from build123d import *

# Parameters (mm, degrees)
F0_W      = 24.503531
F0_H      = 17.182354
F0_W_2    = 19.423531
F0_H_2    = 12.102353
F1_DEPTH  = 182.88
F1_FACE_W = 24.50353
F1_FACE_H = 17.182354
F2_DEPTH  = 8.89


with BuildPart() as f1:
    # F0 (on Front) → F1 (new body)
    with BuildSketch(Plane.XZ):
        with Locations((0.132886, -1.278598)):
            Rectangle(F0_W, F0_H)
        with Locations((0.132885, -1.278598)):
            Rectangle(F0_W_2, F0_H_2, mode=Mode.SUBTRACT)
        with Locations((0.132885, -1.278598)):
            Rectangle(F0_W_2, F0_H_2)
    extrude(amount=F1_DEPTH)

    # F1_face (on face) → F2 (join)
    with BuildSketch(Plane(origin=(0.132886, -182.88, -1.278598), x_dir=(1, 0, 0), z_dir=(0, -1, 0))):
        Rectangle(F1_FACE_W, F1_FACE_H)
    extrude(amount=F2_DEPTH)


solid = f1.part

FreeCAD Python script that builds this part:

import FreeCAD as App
import Part
import Sketcher
Q = App.Units.Quantity

doc = App.newDocument("Part")
body = doc.addObject("PartDesign::Body", "Body")

# Sketch on XZ plane
sketch1 = body.newObject("Sketcher::SketchObject", "Sketch")
sketch1.AttachmentSupport = (doc.getObject("XZ_Plane"), [""])
sketch1.MapMode = "FlatFace"
sketch1.addGeometry([
    Part.LineSegment(App.Vector(-12, 7, 0), App.Vector(-12, -10, 0)),
    Part.LineSegment(App.Vector(-12, -10, 0), App.Vector(12, -10, 0)),
    Part.LineSegment(App.Vector(12, -10, 0), App.Vector(12, 7, 0)),
    Part.LineSegment(App.Vector(12, 7, 0), App.Vector(-12, 7, 0)),
], False)
sketch1.addConstraint([
    Sketcher.Constraint("Coincident", 0, 2, 1, 1),
    Sketcher.Constraint("Coincident", 1, 2, 2, 1),
    Sketcher.Constraint("Coincident", 2, 2, 3, 1),
    Sketcher.Constraint("Coincident", 3, 2, 0, 1),
    Sketcher.Constraint("Vertical", 0),
    Sketcher.Constraint("Horizontal", 1),
    Sketcher.Constraint("Vertical", 2),
    Sketcher.Constraint("Horizontal", 3),
    Sketcher.Constraint("DistanceX", 1, 1, 1, 2, Q("24.503531 mm")),
    Sketcher.Constraint("DistanceY", 0, 2, 0, 1, Q("17.182354 mm")),
    Sketcher.Constraint("DistanceX", 0, 2, -1, 1, Q("12.11888 mm")),
    Sketcher.Constraint("DistanceY", -1, 1, 2, 2, Q("7.312579 mm")),
])
pad1 = body.newObject("PartDesign::Pad", "Pad")
pad1.Profile = sketch1
pad1.Length = Q("7.2 in")

# Sketch on XZ plane
sketch2 = body.newObject("Sketcher::SketchObject", "Sketch001")
sketch2.AttachmentSupport = (doc.getObject("XZ_Plane"), [""])
sketch2.MapMode = "FlatFace"
sketch2.AttachmentOffset = App.Placement(App.Vector(0, 0, 7.2 * 25.4), App.Rotation())
sketch2.addGeometry([
    Part.LineSegment(App.Vector(-12, 7, 0), App.Vector(-12, -10, 0)),
    Part.LineSegment(App.Vector(-12, -10, 0), App.Vector(12, -10, 0)),
    Part.LineSegment(App.Vector(12, -10, 0), App.Vector(12, 7, 0)),
    Part.LineSegment(App.Vector(12, 7, 0), App.Vector(-12, 7, 0)),
], False)
sketch2.addConstraint([
    Sketcher.Constraint("Coincident", 0, 2, 1, 1),
    Sketcher.Constraint("Coincident", 1, 2, 2, 1),
    Sketcher.Constraint("Coincident", 2, 2, 3, 1),
    Sketcher.Constraint("Coincident", 3, 2, 0, 1),
    Sketcher.Constraint("Vertical", 0),
    Sketcher.Constraint("Horizontal", 1),
    Sketcher.Constraint("Vertical", 2),
    Sketcher.Constraint("Horizontal", 3),
    Sketcher.Constraint("DistanceX", 1, 1, 1, 2, Q("24.50353 mm")),
    Sketcher.Constraint("DistanceY", 0, 2, 0, 1, Q("17.182354 mm")),
    Sketcher.Constraint("DistanceX", 0, 2, -1, 1, Q("12.118879 mm")),
    Sketcher.Constraint("DistanceY", -1, 1, 2, 2, Q("7.312579 mm")),
])
pad2 = body.newObject("PartDesign::Pad", "Pad001")
pad2.Profile = sketch2
pad2.Length = Q("0.35 in")

doc.recompute()
